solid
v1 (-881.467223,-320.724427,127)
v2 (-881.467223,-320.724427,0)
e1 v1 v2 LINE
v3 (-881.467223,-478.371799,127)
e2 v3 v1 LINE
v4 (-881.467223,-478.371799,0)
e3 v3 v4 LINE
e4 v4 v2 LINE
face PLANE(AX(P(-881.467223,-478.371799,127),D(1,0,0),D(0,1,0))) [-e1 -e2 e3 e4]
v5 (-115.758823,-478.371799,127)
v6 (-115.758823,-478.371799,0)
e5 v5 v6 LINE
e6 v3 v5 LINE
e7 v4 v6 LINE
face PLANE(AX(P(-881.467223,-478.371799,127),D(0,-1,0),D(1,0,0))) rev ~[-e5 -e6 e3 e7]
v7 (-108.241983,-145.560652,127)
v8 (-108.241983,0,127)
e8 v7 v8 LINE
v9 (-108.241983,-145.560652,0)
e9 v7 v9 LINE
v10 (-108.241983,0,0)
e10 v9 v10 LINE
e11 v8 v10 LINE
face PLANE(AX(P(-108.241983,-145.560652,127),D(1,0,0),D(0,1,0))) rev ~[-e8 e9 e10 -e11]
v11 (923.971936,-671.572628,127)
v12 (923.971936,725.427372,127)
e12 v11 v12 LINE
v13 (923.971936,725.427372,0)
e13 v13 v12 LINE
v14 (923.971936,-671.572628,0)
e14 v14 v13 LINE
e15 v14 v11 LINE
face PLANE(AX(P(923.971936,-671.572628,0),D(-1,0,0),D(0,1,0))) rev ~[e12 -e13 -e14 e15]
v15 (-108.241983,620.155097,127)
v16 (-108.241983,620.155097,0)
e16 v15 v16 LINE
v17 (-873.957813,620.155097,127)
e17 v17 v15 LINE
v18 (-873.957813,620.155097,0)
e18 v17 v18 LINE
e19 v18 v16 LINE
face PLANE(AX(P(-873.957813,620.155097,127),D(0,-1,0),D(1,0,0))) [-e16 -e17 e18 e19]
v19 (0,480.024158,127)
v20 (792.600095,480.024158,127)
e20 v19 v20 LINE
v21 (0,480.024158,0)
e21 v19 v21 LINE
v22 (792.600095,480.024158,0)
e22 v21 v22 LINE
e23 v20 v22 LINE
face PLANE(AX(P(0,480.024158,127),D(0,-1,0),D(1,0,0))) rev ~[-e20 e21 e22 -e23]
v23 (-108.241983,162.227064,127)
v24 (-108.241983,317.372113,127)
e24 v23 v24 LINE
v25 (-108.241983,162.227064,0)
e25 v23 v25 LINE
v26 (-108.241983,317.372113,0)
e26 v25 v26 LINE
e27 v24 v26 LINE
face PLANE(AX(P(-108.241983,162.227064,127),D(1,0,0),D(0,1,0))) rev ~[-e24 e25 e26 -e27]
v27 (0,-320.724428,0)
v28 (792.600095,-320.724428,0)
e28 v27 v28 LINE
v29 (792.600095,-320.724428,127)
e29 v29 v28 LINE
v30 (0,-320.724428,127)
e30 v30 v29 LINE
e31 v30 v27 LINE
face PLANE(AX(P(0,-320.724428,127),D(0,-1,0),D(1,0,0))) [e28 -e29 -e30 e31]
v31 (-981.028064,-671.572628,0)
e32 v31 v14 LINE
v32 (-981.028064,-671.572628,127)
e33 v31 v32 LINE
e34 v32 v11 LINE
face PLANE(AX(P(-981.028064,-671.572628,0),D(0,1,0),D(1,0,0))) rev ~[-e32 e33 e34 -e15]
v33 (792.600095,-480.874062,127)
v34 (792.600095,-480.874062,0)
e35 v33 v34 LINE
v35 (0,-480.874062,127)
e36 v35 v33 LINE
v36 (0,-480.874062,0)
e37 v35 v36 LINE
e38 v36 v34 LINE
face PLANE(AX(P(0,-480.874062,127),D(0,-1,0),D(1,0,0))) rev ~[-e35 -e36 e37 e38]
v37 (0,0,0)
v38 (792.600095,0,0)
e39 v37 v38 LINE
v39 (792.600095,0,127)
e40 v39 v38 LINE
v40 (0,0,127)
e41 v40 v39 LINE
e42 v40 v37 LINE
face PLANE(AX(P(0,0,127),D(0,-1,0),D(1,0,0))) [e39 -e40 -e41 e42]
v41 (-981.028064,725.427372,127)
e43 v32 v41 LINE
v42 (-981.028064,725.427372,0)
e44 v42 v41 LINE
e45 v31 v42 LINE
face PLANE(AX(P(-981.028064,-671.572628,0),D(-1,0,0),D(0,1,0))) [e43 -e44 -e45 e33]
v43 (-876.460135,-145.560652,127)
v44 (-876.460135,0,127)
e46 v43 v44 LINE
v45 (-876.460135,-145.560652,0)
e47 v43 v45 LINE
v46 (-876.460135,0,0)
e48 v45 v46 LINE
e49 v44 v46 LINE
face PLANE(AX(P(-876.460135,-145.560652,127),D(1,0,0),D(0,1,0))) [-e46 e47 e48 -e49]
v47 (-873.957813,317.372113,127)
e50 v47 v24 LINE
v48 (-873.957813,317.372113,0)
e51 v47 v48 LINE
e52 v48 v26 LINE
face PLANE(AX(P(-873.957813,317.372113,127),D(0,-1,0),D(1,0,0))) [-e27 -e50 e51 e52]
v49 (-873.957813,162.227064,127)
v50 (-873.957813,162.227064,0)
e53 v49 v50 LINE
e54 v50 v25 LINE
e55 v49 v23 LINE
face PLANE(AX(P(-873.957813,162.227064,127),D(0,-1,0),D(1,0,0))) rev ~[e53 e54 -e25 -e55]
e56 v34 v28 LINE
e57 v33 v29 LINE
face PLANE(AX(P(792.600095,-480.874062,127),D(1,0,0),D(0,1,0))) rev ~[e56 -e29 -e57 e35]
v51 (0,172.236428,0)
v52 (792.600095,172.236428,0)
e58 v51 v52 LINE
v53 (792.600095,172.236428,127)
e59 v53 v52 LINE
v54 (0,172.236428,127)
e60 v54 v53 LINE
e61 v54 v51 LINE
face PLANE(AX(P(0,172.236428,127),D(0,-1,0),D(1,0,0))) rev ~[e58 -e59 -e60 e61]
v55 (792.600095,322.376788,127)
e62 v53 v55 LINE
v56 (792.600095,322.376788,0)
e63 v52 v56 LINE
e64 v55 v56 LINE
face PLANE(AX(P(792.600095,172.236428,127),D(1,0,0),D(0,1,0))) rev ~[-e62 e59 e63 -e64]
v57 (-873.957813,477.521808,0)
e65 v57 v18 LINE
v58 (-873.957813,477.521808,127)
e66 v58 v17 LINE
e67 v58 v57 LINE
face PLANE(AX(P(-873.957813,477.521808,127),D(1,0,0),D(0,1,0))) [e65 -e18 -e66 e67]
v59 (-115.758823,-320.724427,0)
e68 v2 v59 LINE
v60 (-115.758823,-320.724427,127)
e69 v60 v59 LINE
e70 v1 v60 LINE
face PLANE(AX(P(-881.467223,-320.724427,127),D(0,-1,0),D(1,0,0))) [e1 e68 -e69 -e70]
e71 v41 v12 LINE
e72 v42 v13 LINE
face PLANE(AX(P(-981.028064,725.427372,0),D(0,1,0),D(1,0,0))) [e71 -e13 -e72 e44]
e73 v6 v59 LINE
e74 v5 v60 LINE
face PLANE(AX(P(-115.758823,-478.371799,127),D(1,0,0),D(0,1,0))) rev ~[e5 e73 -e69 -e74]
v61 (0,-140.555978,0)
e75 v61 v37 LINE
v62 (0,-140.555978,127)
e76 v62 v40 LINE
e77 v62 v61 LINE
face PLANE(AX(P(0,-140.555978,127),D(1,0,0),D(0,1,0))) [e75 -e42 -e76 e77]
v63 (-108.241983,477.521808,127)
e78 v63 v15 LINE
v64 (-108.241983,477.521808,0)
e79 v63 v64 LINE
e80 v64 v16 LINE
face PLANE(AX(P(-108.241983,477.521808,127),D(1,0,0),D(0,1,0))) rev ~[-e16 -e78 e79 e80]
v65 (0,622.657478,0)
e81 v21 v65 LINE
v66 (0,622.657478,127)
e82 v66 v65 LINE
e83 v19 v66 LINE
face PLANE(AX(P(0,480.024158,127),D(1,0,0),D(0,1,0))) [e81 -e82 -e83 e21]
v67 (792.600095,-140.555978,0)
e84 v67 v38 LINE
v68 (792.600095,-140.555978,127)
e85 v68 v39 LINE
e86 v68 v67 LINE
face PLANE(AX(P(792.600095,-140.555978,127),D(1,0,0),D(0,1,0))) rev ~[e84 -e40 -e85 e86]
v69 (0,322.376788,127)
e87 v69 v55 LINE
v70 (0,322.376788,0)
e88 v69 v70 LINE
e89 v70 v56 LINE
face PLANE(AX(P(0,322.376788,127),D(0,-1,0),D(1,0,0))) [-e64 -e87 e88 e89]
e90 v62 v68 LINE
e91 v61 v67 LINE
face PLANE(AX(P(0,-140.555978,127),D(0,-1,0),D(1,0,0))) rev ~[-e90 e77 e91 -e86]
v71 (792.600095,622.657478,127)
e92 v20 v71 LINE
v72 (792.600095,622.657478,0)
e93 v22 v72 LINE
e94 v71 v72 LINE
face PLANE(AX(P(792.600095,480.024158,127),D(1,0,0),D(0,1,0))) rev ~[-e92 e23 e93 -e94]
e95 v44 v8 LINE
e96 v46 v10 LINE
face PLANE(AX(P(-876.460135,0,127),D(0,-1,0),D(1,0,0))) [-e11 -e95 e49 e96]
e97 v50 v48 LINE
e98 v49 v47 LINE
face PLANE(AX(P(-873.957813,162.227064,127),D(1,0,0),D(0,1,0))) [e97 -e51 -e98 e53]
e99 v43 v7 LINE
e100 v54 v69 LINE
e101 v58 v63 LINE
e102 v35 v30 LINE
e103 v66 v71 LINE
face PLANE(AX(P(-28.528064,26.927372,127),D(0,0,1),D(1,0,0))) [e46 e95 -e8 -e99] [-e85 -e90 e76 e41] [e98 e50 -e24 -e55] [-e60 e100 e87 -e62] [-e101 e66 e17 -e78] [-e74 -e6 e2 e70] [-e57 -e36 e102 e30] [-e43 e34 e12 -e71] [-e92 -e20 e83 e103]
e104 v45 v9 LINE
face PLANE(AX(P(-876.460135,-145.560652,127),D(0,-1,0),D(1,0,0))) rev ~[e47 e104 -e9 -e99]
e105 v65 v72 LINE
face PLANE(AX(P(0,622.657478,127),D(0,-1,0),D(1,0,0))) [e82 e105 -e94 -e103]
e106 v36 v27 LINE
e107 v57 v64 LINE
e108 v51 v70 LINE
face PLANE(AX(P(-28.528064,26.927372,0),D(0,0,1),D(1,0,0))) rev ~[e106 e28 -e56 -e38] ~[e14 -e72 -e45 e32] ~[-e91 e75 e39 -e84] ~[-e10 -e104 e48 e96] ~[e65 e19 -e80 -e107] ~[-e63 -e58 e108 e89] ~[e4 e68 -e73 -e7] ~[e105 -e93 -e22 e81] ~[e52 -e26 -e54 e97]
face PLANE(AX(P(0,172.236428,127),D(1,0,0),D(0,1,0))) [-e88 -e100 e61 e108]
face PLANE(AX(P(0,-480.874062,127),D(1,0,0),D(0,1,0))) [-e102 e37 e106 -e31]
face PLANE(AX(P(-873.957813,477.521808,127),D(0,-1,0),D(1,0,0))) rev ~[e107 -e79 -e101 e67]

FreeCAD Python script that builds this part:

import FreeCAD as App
import Part
import Sketcher

V = App.Vector
Q = App.Units.Quantity


def add_polygon(sketch, points):
    """Adds a closed chain of lines whose ends are joined by coincident constraints."""
    first, n = sketch.GeometryCount, len(points)
    for a, b in zip(points, points[1:] + points[:1]):
        sketch.addGeometry(Part.LineSegment(App.Vector(*a, 0), App.Vector(*b, 0)), False)
    for i in range(n):
        sketch.addConstraint(Sketcher.Constraint("Coincident", first + i, 2, first + (i + 1) % n, 1))

doc = App.newDocument("Part")
body = doc.addObject("PartDesign::Body", "Body")

sketch1 = body.newObject("Sketcher::SketchObject", "Sketch")
sketch1.AttachmentSupport = (doc.getObject("XY_Plane"), [""])
sketch1.MapMode = "FlatFace"
add_polygon(sketch1, [(-981, 725), (-981, -672), (924, -672), (924, 725)])
sketch1.addConstraint(Sketcher.Constraint("Vertical", 0))
sketch1.addConstraint(Sketcher.Constraint("Horizontal", 1))
sketch1.addConstraint(Sketcher.Constraint("Vertical", 2))
sketch1.addConstraint(Sketcher.Constraint("Horizontal", 3))
sketch1.addConstraint(Sketcher.Constraint("DistanceX", 1, 1, 1, 2, Q("75 in")))
sketch1.addConstraint(Sketcher.Constraint("DistanceY", 0, 2, 0, 1, Q("55 in")))
sketch1.addConstraint(Sketcher.Constraint("DistanceY", 0, 2, -1, 1, Q("671.572628 mm")))
sketch1.addConstraint(Sketcher.Constraint("DistanceX", 0, 2, -1, 1, Q("981.028064 mm")))
pad1 = body.newObject("PartDesign::Pad", "Pad")
pad1.Profile = sketch1
pad1.Length = Q("5 in")

sketch2 = body.newObject("Sketcher::SketchObject", "Sketch001")
sketch2.AttachmentSupport = (doc.getObject("XY_Plane"), [""])
sketch2.MapMode = "FlatFace"
sketch2.AttachmentOffset = App.Placement(V(0, 0, 5 * 25.4), App.Rotation())
add_polygon(sketch2, [(-874, 620), (-874, 478), (-108, 478), (-108, 620)])
add_polygon(sketch2, [(0, 623), (0, 480), (793, 480), (793, 623)])
add_polygon(sketch2, [(-874, 317), (-874, 162), (-108, 162), (-108, 317)])
add_polygon(sketch2, [(0, 322), (0, 172), (793, 172), (793, 322)])
add_polygon(sketch2, [(0, 0), (0, -141), (793, -141), (793, 0)])
add_polygon(sketch2, [(-876, 0), (-876, -146), (-108, -146), (-108, 0)])
add_polygon(sketch2, [(-881, -321), (-881, -478), (-116, -478), (-116, -321)])
add_polygon(sketch2, [(0, -321), (0, -481), (793, -481), (793, -321)])
sketch2.addConstraint(Sketcher.Constraint("Vertical", 0))
sketch2.addConstraint(Sketcher.Constraint("Horizontal", 1))
sketch2.addConstraint(Sketcher.Constraint("Vertical", 2))
sketch2.addConstraint(Sketcher.Constraint("Horizontal", 3))
sketch2.addConstraint(Sketcher.Constraint("Vertical", 4))
sketch2.addConstraint(Sketcher.Constraint("Horizontal", 5))
sketch2.addConstraint(Sketcher.Constraint("Vertical", 6))
sketch2.addConstraint(Sketcher.Constraint("Horizontal", 7))
sketch2.addConstraint(Sketcher.Constraint("Vertical", 8))
sketch2.addConstraint(Sketcher.Constraint("Horizontal", 9))
sketch2.addConstraint(Sketcher.Constraint("Vertical", 10))
sketch2.addConstraint(Sketcher.Constraint("Horizontal", 11))
sketch2.addConstraint(Sketcher.Constraint("Vertical", 12))
sketch2.addConstraint(Sketcher.Constraint("Horizontal", 13))
sketch2.addConstraint(Sketcher.Constraint("Vertical", 14))
sketch2.addConstraint(Sketcher.Constraint("Horizontal", 15))
sketch2.addConstraint(Sketcher.Constraint("Vertical", 16))
sketch2.addConstraint(Sketcher.Constraint("Horizontal", 17))
sketch2.addConstraint(Sketcher.Constraint("Vertical", 18))
sketch2.addConstraint(Sketcher.Constraint("Horizontal", 19))
sketch2.addConstraint(Sketcher.Constraint("Vertical", 20))
sketch2.addConstraint(Sketcher.Constraint("Horizontal", 21))
sketch2.addConstraint(Sketcher.Constraint("Vertical", 22))
sketch2.addConstraint(Sketcher.Constraint("Horizontal", 23))
sketch2.addConstraint(Sketcher.Constraint("Vertical", 24))
sketch2.addConstraint(Sketcher.Constraint("Horizontal", 25))
sketch2.addConstraint(Sketcher.Constraint("Vertical", 26))
sketch2.addConstraint(Sketcher.Constraint("Horizontal", 27))
sketch2.addConstraint(Sketcher.Constraint("Vertical", 28))
sketch2.addConstraint(Sketcher.Constraint("Horizontal", 29))
sketch2.addConstraint(Sketcher.Constraint("Vertical", 30))
sketch2.addConstraint(Sketcher.Constraint("Horizontal", 31))
sketch2.addConstraint(Sketcher.Constraint("Coincident", 19, 2, -1, 1))
sketch2.addConstraint(Sketcher.Constraint("PointOnObject", 4, 2, -2))
sketch2.addConstraint(Sketcher.Constraint("PointOnObject", 12, 2, -2))
sketch2.addConstraint(Sketcher.Constraint("PointOnObject", 22, 2, -1))
sketch2.addConstraint(Sketcher.Constraint("PointOnObject", 28, 2, -2))
sketch2.addConstraint(Sketcher.Constraint("Horizontal", 27, 2, 30, 2))
sketch2.addConstraint(Sketcher.Constraint("Vertical", 3, 2, 8, 2))
sketch2.addConstraint(Sketcher.Constraint("Vertical", 2, 2, 9, 2))
sketch2.addConstraint(Sketcher.Constraint("Vertical", 6, 2, 13, 2))
sketch2.addConstraint(Sketcher.Constraint("Vertical", 14, 2, 17, 2))
sketch2.addConstraint(Sketcher.Constraint("Vertical", 10, 2, 21, 2))
sketch2.addConstraint(Sketcher.Constraint("Vertical", 18, 2, 29, 2))
sketch2.addConstraint(Sketcher.Constraint("DistanceX", 25, 1, 25, 2, Q("30.146 in")))
sketch2.addConstraint(Sketcher.Constraint("DistanceY", 16, 2, 16, 1, Q("5.5336999 in")))
sketch2.addConstraint(Sketcher.Constraint("DistanceX", 1, 1, 1, 2, Q("765.71583 mm")))
sketch2.addConstraint(Sketcher.Constraint("DistanceX", 21, 1, 21, 2, Q("768.218152 mm")))
sketch2.addConstraint(Sketcher.Constraint("DistanceY", 0, 2, 0, 1, Q("142.633289 mm")))
sketch2.addConstraint(Sketcher.Constraint("DistanceY", 4, 2, 4, 1, Q("142.633319 mm")))
sketch2.addConstraint(Sketcher.Constraint("DistanceY", 8, 2, 8, 1, Q("155.145049 mm")))
sketch2.addConstraint(Sketcher.Constraint("DistanceY", 12, 2, 12, 1, Q("150.14036 mm")))
sketch2.addConstraint(Sketcher.Constraint("DistanceY", 20, 2, 20, 1, Q("145.560652 mm")))
sketch2.addConstraint(Sketcher.Constraint("DistanceY", 24, 2, 24, 1, Q("157.647371 mm")))
sketch2.addConstraint(Sketcher.Constraint("DistanceY", 24, 2, -1, 1, Q("478.371799 mm")))
sketch2.addConstraint(Sketcher.Constraint("DistanceX", 5, 1, 5, 2, Q("792.600095 mm")))
sketch2.addConstraint(Sketcher.Constraint("DistanceY", 28, 2, 28, 1, Q("160.149634 mm")))
sketch2.addConstraint(Sketcher.Constraint("DistanceY", -1, 1, 4, 2, Q("480.024158 mm")))
sketch2.addConstraint(Sketcher.Constraint("DistanceY", 1, 2, 4, 2, Q("2.502351 mm")))
sketch2.addConstraint(Sketcher.Constraint("DistanceX", 1, 2, 5, 2, Q("900.842078 mm")))
sketch2.addConstraint(Sketcher.Constraint("DistanceY", 12, 2, 4, 2, Q("307.787731 mm")))
sketch2.addConstraint(Sketcher.Constraint("DistanceY", 16, 2, 9, 2, Q("302.783042 mm")))
sketch2.addConstraint(Sketcher.Constraint("DistanceX", 24, 2, 8, 2, Q("7.50941 mm")))
pocket1 = body.newObject("PartDesign::Pocket", "Pocket")
pocket1.Profile = sketch2
pocket1.Type = "ThroughAll"

doc.recompute()
